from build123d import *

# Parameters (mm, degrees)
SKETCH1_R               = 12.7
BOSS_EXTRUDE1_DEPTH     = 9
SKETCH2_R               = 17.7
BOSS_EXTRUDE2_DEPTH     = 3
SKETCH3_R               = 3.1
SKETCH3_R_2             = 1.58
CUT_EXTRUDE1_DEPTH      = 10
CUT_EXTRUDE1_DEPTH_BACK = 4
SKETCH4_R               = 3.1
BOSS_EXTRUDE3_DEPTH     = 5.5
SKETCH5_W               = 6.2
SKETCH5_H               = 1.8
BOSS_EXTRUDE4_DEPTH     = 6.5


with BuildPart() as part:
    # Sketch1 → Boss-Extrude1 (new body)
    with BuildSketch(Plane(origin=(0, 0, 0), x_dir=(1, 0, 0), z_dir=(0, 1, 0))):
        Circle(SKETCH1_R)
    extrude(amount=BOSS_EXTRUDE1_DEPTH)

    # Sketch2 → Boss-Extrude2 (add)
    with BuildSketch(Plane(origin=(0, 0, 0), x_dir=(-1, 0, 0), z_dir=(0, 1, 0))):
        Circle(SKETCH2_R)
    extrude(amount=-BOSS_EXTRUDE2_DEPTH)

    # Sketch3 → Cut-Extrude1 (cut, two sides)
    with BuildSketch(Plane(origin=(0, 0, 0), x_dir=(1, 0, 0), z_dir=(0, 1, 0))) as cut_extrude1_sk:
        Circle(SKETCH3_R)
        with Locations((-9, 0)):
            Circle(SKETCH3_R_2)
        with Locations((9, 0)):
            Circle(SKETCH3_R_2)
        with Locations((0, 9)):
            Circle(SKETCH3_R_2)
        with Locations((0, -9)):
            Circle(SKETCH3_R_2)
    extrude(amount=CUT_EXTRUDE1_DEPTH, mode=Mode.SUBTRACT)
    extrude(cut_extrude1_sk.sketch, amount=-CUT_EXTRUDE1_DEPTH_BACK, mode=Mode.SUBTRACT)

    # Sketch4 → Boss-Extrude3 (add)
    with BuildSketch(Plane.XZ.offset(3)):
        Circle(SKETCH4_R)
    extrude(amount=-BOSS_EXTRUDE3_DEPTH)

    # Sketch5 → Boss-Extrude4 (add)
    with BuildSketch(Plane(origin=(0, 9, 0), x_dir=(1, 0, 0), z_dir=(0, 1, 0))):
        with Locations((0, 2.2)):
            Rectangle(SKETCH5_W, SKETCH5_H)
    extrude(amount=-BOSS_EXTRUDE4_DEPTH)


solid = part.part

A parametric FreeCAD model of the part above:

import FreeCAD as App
import Part
import Sketcher


def add_polygon(sketch, points):
    """Adds a closed chain of lines whose ends are joined by coincident constraints."""
    first, n = sketch.GeometryCount, len(points)
    for a, b in zip(points, points[1:] + points[:1]):
        sketch.addGeometry(Part.LineSegment(App.Vector(*a, 0), App.Vector(*b, 0)), False)
    for i in range(n):
        sketch.addConstraint(Sketcher.Constraint("Coincident", first + i, 2, first + (i + 1) % n, 1))

doc = App.newDocument("Part")
body = doc.addObject("PartDesign::Body", "Body")

# Sketch on XZ plane
sketch1 = body.newObject("Sketcher::SketchObject", "Sketch")
sketch1.AttachmentSupport = (doc.getObject("XZ_Plane"), [""])
sketch1.MapMode = "FlatFace"
sketch1.addGeometry(Part.Circle(App.Vector(0, 0, 0), App.Vector(0, 0, 1), 13), False)
sketch1.addConstraint(Sketcher.Constraint("Coincident", 0, 3, -1, 1))
sketch1.addConstraint(Sketcher.Constraint("Diameter", 0, 25.4))
pad1 = body.newObject("PartDesign::Pad", "Pad")
pad1.Profile = sketch1
pad1.Length = 9
pad1.Reversed = True

# Sketch on XZ plane
sketch2 = body.newObject("Sketcher::SketchObject", "Sketch001")
sketch2.AttachmentSupport = (doc.getObject("XZ_Plane"), [""])
sketch2.MapMode = "FlatFace"
sketch2.addGeometry(Part.Circle(App.Vector(0, 0, 0), App.Vector(0, 0, 1), 18), False)
sketch2.addConstraint(Sketcher.Constraint("Coincident", 0, 3, -1, 1))
sketch2.addConstraint(Sketcher.Constraint("Diameter", 0, 35.4))
pad2 = body.newObject("PartDesign::Pad", "Pad001")
pad2.Profile = sketch2
pad2.Length = 3

# Sketch on XZ plane
sketch3 = body.newObject("Sketcher::SketchObject", "Sketch002")
sketch3.AttachmentSupport = (doc.getObject("XZ_Plane"), [""])
sketch3.MapMode = "FlatFace"
sketch3.addGeometry(Part.Circle(App.Vector(0, 0, 0), App.Vector(0, 0, 1), 3.1), False)
sketch3.addGeometry(Part.Circle(App.Vector(-9, 0, 0), App.Vector(0, 0, 1), 1.6), False)
sketch3.addGeometry(Part.Circle(App.Vector(9, 0, 0), App.Vector(0, 0, 1), 1.6), False)
sketch3.addGeometry(Part.Circle(App.Vector(0, -9, 0), App.Vector(0, 0, 1), 1.6), False)
sketch3.addGeometry(Part.Circle(App.Vector(0, 9, 0), App.Vector(0, 0, 1), 1.6), False)
sketch3.addConstraint(Sketcher.Constraint("Coincident", 0, 3, -1, 1))
sketch3.addConstraint(Sketcher.Constraint("Equal", 1, 2))
sketch3.addConstraint(Sketcher.Constraint("Equal", 2, 3))
sketch3.addConstraint(Sketcher.Constraint("Equal", 3, 4))
sketch3.addConstraint(Sketcher.Constraint("Symmetric", 1, 3, 2, 3, -1, 1))
sketch3.addConstraint(Sketcher.Constraint("Symmetric", 3, 3, 4, 3, -1, 1))
sketch3.addConstraint(Sketcher.Constraint("PointOnObject", 1, 3, -1))
sketch3.addConstraint(Sketcher.Constraint("PointOnObject", 3, 3, -2))
sketch3.addConstraint(Sketcher.Constraint("Diameter", 0, 6.2))
sketch3.addConstraint(Sketcher.Constraint("Diameter", 1, 3.16))
sketch3.addConstraint(Sketcher.Constraint("DistanceX", 1, 3, -1, 1, 9.0))
sketch3.addConstraint(Sketcher.Constraint("DistanceY", 3, 3, -1, 1, 9.0))
pocket1 = body.newObject("PartDesign::Pocket", "Pocket")
pocket1.Profile = sketch3
pocket1.Type = "ThroughAll"
pocket1.Midplane = True

# Sketch on XZ plane
sketch4 = body.newObject("Sketcher::SketchObject", "Sketch003")
sketch4.AttachmentSupport = (doc.getObject("XZ_Plane"), [""])
sketch4.MapMode = "FlatFace"
sketch4.AttachmentOffset = App.Placement(App.Vector(0, 0, 3), App.Rotation())
sketch4.addGeometry(Part.Circle(App.Vector(0, 0, 0), App.Vector(0, 0, 1), 3.1), False)
sketch4.addConstraint(Sketcher.Constraint("Coincident", 0, 3, -1, 1))
sketch4.addConstraint(Sketcher.Constraint("Diameter", 0, 6.2))
pad3 = body.newObject("PartDesign::Pad", "Pad002")
pad3.Profile = sketch4
pad3.Length = 5.5
pad3.Reversed = True

# Sketch on XZ plane
sketch5 = body.newObject("Sketcher::SketchObject", "Sketch004")
sketch5.AttachmentSupport = (doc.getObject("XZ_Plane"), [""])
sketch5.MapMode = "FlatFace"
sketch5.AttachmentOffset = App.Placement(App.Vector(0, 0, -9), App.Rotation())
add_polygon(sketch5, [(-3.1, -3.1), (-3.1, -1.3), (3.1, -1.3), (3.1, -3.1)])  # lines 0-3
sketch5.addConstraint(Sketcher.Constraint("Vertical", 0))
sketch5.addConstraint(Sketcher.Constraint("Horizontal", 1))
sketch5.addConstraint(Sketcher.Constraint("Vertical", 2))
sketch5.addConstraint(Sketcher.Constraint("Horizontal", 3))
sketch5.addConstraint(Sketcher.Constraint("DistanceX", 1, 1, 1, 2, 6.2))
sketch5.addConstraint(Sketcher.Constraint("DistanceY", 0, 1, 0, 2, 1.8))
sketch5.addConstraint(Sketcher.Constraint("DistanceX", 0, 2, -1, 1, 3.1))
sketch5.addConstraint(Sketcher.Constraint("DistanceY", 0, 2, -1, 1, 1.3))
pad4 = body.newObject("PartDesign::Pad", "Pad003")
pad4.Profile = sketch5
pad4.Length = 6.5

doc.recompute()
